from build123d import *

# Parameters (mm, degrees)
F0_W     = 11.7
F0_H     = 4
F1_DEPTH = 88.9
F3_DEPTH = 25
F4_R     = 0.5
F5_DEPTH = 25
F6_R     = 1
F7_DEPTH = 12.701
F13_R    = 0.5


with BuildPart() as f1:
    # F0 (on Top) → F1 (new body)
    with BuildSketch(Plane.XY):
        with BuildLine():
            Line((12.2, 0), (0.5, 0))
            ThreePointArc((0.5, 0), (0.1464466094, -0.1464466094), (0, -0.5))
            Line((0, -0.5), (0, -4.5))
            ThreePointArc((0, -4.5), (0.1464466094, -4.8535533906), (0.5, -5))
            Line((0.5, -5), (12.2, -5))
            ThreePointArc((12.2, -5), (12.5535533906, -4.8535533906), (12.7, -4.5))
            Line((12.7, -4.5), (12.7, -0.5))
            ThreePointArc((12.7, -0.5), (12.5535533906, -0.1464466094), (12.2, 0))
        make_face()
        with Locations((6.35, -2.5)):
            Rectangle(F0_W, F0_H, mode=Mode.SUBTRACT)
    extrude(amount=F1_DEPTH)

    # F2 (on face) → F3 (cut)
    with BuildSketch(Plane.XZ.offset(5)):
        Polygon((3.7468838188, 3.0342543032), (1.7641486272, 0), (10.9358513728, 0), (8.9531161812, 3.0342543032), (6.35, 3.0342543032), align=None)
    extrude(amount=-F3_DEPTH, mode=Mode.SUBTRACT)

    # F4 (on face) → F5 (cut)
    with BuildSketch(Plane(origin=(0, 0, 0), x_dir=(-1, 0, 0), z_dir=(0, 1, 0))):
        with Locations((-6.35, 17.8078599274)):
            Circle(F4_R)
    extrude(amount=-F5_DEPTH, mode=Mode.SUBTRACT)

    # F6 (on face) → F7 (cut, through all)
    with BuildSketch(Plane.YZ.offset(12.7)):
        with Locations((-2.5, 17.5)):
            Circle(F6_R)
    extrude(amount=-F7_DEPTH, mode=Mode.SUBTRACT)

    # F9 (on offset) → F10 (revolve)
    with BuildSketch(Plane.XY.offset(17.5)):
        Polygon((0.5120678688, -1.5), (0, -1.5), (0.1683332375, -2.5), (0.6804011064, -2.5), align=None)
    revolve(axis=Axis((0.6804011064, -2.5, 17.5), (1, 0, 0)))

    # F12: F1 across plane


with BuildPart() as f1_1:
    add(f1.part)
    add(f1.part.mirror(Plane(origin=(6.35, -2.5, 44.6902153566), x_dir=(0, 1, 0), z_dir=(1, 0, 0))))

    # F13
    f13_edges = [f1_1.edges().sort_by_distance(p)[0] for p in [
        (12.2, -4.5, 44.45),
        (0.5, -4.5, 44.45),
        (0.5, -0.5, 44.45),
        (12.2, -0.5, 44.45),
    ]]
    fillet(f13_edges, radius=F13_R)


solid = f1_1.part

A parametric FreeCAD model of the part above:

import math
import FreeCAD as App
import Part
import Sketcher

V = App.Vector
Q = App.Units.Quantity


def edges_at(feature, points):
    """Names of the edges that pass closest to the given points."""
    edges = feature.Shape.Edges
    near = lambda p: min(range(len(edges)), key=lambda i: edges[i].distToShape(Part.Vertex(*p))[0])
    return sorted({f"Edge{near(p) + 1}" for p in points})

doc = App.newDocument("Part")
body = doc.addObject("PartDesign::Body", "Body")

sketch1 = body.newObject("Sketcher::SketchObject", "Sketch")
sketch1.AttachmentSupport = (doc.getObject("XY_Plane"), [""])
sketch1.MapMode = "FlatFace"
sketch1.addGeometry([
    Part.LineSegment(V(12.2, 0, 0), V(0.5, 0, 0)),
    Part.ArcOfCircle(Part.Circle(V(0.5, -0.5, 0), V(0, 0, 1), 0.5), math.radians(90), math.radians(180)),
    Part.LineSegment(V(0, -0.5, 0), V(0, -4.5, 0)),
    Part.ArcOfCircle(Part.Circle(V(0.5, -4.5, 0), V(0, 0, 1), 0.5), math.radians(180), math.radians(270)),
    Part.LineSegment(V(0.5, -5, 0), V(12.2, -5, 0)),
    Part.ArcOfCircle(Part.Circle(V(12.2, -4.5, 0), V(0, 0, 1), 0.5), math.radians(-90), math.radians(0)),
    Part.LineSegment(V(12.7, -4.5, 0), V(12.7, -0.5, 0)),
    Part.ArcOfCircle(Part.Circle(V(12.2, -0.5, 0), V(0, 0, 1), 0.5), math.radians(0), math.radians(90)),
    Part.LineSegment(V(12.2, -4.5, 0), V(0.5, -4.5, 0)),
    Part.LineSegment(V(0.5, -4.5, 0), V(0.5, -0.5, 0)),
    Part.LineSegment(V(0.5, -0.5, 0), V(12.2, -0.5, 0)),
    Part.LineSegment(V(12.2, -0.5, 0), V(12.2, -4.5, 0)),
], False)
sketch1.addConstraint([
    Sketcher.Constraint("Tangent", 0, 2, 1, 1),
    Sketcher.Constraint("Tangent", 1, 2, 2, 1),
    Sketcher.Constraint("Tangent", 2, 2, 3, 1),
    Sketcher.Constraint("Tangent", 3, 2, 4, 1),
    Sketcher.Constraint("Tangent", 4, 2, 5, 1),
    Sketcher.Constraint("Tangent", 5, 2, 6, 1),
    Sketcher.Constraint("Tangent", 6, 2, 7, 1),
    Sketcher.Constraint("Tangent", 7, 2, 0, 1),
    Sketcher.Constraint("Coincident", 8, 2, 9, 1),
    Sketcher.Constraint("Coincident", 9, 2, 10, 1),
    Sketcher.Constraint("Coincident", 10, 2, 11, 1),
    Sketcher.Constraint("Coincident", 11, 2, 8, 1),
    Sketcher.Constraint("Horizontal", 0),
    Sketcher.Constraint("Vertical", 2),
    Sketcher.Constraint("Horizontal", 4),
    Sketcher.Constraint("Vertical", 6),
    Sketcher.Constraint("Horizontal", 8),
    Sketcher.Constraint("Vertical", 9),
    Sketcher.Constraint("Horizontal", 10),
    Sketcher.Constraint("Vertical", 11),
    Sketcher.Constraint("Coincident", 8, 2, 3, 3),
    Sketcher.Constraint("Coincident", 9, 2, 1, 3),
    Sketcher.Constraint("Coincident", 10, 2, 7, 3),
    Sketcher.Constraint("Equal", 3, 5),
    Sketcher.Constraint("PointOnObject", 0, 2, -1),
    Sketcher.Constraint("PointOnObject", 1, 2, -2),
    Sketcher.Constraint("Radius", 1, Q("0.5 mm")),
    Sketcher.Constraint("DistanceY", 2, 2, 2, 1, Q("4 mm")),
    Sketcher.Constraint("DistanceX", 0, 2, 0, 1, Q("11.7 mm")),
])
pad1 = body.newObject("PartDesign::Pad", "Pad")
pad1.Profile = sketch1
pad1.Length = 88.9

sketch2 = body.newObject("Sketcher::SketchObject", "Sketch001")
sketch2.AttachmentSupport = (doc.getObject("XZ_Plane"), [""])
sketch2.MapMode = "FlatFace"
sketch2.AttachmentOffset = App.Placement(V(0, 0, 5), App.Rotation())
sketch2.addGeometry([
    Part.LineSegment(V(3.746884, 3.034254, 0), V(1.764149, 0, 0)),
    Part.LineSegment(V(1.764149, 0, 0), V(10.935851, 0, 0)),
    Part.LineSegment(V(10.935851, 0, 0), V(8.953116, 3.034254, 0)),
    Part.LineSegment(V(8.953116, 3.034254, 0), V(3.746884, 3.034254, 0)),
], False)
sketch2.addConstraint([
    Sketcher.Constraint("Coincident", 0, 2, 1, 1),
    Sketcher.Constraint("Coincident", 1, 2, 2, 1),
    Sketcher.Constraint("Coincident", 2, 2, 3, 1),
    Sketcher.Constraint("Coincident", 3, 2, 0, 1),
    Sketcher.Constraint("Horizontal", 1),
    Sketcher.Constraint("Horizontal", 3),
    Sketcher.Constraint("PointOnObject", 0, 2, -1),
    Sketcher.Constraint("Equal", 0, 2),
    Sketcher.Constraint("Distance", 0, Q("3.624629 mm")),
    Sketcher.Constraint("DistanceX", 1, 1, 1, 2, Q("9.171703 mm")),
    Sketcher.Constraint("DistanceX", 3, 2, 3, 1, Q("5.206232 mm")),
    Sketcher.Constraint("DistanceX", -1, 1, 0, 2, Q("1.764149 mm")),
])
pocket1 = body.newObject("PartDesign::Pocket", "Pocket")
pocket1.Profile = sketch2
pocket1.Length = 25

sketch3 = body.newObject("Sketcher::SketchObject", "Sketch002")
sketch3.AttachmentSupport = (doc.getObject("XZ_Plane"), [""])
sketch3.MapMode = "FlatFace"
sketch3.addGeometry(Part.Circle(V(6.35, 17.80786, 0), V(0, 0, 1), 0.5), False)
sketch3.addConstraint([
    Sketcher.Constraint("Diameter", 0, Q("1 mm")),
    Sketcher.Constraint("DistanceX", -1, 1, 0, 3, Q("6.35 mm")),
    Sketcher.Constraint("DistanceY", -1, 1, 0, 3, Q("17.80786 mm")),
])
pocket2 = body.newObject("PartDesign::Pocket", "Pocket001")
pocket2.Profile = sketch3
pocket2.Length = 25
pocket2.Reversed = True

sketch4 = body.newObject("Sketcher::SketchObject", "Sketch003")
sketch4.AttachmentSupport = (doc.getObject("YZ_Plane"), [""])
sketch4.MapMode = "FlatFace"
sketch4.AttachmentOffset = App.Placement(V(0, 0, 12.7), App.Rotation())
sketch4.addGeometry(Part.Circle(V(-2.5, 17.5, 0), V(0, 0, 1), 1), False)
sketch4.addConstraint([
    Sketcher.Constraint("Diameter", 0, Q("2 mm")),
    Sketcher.Constraint("DistanceX", 0, 3, -1, 1, Q("2.5 mm")),
    Sketcher.Constraint("DistanceY", -1, 1, 0, 3, Q("17.5 mm")),
])
pocket3 = body.newObject("PartDesign::Pocket", "Pocket002")
pocket3.Profile = sketch4
pocket3.Type = "ThroughAll"

sketch5 = body.newObject("Sketcher::SketchObject", "Sketch004")
sketch5.AttachmentSupport = (doc.getObject("XY_Plane"), [""])
sketch5.MapMode = "FlatFace"
sketch5.AttachmentOffset = App.Placement(V(0, 0, 17.5), App.Rotation())
sketch5.addGeometry([
    Part.LineSegment(V(0.512068, -1.5, 0), V(0, -1.5, 0)),
    Part.LineSegment(V(0, -1.5, 0), V(0.168333, -2.5, 0)),
    Part.LineSegment(V(0.168333, -2.5, 0), V(0.680401, -2.5, 0)),
    Part.LineSegment(V(0.680401, -2.5, 0), V(0.512068, -1.5, 0)),
], False)
sketch5.addGeometry(Part.LineSegment(V(0, -2.5, 0), V(0.680401, -2.5, 0)), True)
sketch5.addConstraint([
    Sketcher.Constraint("Coincident", 0, 2, 1, 1),
    Sketcher.Constraint("Coincident", 1, 2, 2, 1),
    Sketcher.Constraint("Coincident", 2, 2, 3, 1),
    Sketcher.Constraint("Coincident", 3, 2, 0, 1),
    Sketcher.Constraint("Horizontal", 0),
    Sketcher.Constraint("Horizontal", 2),
    Sketcher.Constraint("Horizontal", 4),
    Sketcher.Constraint("Coincident", 4, 2, 2, 2),
    Sketcher.Constraint("PointOnObject", 0, 2, -2),
    Sketcher.Constraint("PointOnObject", 4, 1, -2),
    Sketcher.Constraint("Parallel", 1, 3),
    Sketcher.Constraint("DistanceY", 1, 2, 0, 2, Q("1 mm")),
    Sketcher.Constraint("DistanceY", 0, 2, -1, 1, Q("1.5 mm")),
    Sketcher.Constraint("DistanceX", 4, 1, 4, 2, Q("0.680401 mm")),
    Sketcher.Constraint("Distance", 1, Q("1.014069 mm")),
])
revolution = body.newObject("PartDesign::Revolution", "Revolution")
revolution.Profile = sketch5
revolution.ReferenceAxis = (sketch5, ["Axis0"])
revolution.Angle = 360
body2 = doc.addObject("PartDesign::Body", "Body001")
doc.recompute()

body2.BaseFeature = body
doc.recompute()

mirroring = doc.addObject("Part::Mirroring", "Mirroring")
mirroring.Source = body
mirroring.Base = V(6.35, -2.5, 44.690215)
mirroring.Normal = V(1, 0, 0)
body3 = doc.addObject("PartDesign::Body", "Body002")
body3.BaseFeature = mirroring
boolean = body2.newObject("PartDesign::Boolean", "Boolean")
boolean.Type = "Fuse"
boolean.addObjects([body3])
doc.recompute()

fillet = body2.newObject("PartDesign::Fillet", "Fillet")
fillet.Base = (boolean, edges_at(boolean, [
    (12.2, -4.5, 44.45),
    (0.5, -4.5, 44.45),
    (0.5, -0.5, 44.45),
    (12.2, -0.5, 44.45),
]))
fillet.Radius = 0.5
mirroring.Visibility = False

doc.recompute()
